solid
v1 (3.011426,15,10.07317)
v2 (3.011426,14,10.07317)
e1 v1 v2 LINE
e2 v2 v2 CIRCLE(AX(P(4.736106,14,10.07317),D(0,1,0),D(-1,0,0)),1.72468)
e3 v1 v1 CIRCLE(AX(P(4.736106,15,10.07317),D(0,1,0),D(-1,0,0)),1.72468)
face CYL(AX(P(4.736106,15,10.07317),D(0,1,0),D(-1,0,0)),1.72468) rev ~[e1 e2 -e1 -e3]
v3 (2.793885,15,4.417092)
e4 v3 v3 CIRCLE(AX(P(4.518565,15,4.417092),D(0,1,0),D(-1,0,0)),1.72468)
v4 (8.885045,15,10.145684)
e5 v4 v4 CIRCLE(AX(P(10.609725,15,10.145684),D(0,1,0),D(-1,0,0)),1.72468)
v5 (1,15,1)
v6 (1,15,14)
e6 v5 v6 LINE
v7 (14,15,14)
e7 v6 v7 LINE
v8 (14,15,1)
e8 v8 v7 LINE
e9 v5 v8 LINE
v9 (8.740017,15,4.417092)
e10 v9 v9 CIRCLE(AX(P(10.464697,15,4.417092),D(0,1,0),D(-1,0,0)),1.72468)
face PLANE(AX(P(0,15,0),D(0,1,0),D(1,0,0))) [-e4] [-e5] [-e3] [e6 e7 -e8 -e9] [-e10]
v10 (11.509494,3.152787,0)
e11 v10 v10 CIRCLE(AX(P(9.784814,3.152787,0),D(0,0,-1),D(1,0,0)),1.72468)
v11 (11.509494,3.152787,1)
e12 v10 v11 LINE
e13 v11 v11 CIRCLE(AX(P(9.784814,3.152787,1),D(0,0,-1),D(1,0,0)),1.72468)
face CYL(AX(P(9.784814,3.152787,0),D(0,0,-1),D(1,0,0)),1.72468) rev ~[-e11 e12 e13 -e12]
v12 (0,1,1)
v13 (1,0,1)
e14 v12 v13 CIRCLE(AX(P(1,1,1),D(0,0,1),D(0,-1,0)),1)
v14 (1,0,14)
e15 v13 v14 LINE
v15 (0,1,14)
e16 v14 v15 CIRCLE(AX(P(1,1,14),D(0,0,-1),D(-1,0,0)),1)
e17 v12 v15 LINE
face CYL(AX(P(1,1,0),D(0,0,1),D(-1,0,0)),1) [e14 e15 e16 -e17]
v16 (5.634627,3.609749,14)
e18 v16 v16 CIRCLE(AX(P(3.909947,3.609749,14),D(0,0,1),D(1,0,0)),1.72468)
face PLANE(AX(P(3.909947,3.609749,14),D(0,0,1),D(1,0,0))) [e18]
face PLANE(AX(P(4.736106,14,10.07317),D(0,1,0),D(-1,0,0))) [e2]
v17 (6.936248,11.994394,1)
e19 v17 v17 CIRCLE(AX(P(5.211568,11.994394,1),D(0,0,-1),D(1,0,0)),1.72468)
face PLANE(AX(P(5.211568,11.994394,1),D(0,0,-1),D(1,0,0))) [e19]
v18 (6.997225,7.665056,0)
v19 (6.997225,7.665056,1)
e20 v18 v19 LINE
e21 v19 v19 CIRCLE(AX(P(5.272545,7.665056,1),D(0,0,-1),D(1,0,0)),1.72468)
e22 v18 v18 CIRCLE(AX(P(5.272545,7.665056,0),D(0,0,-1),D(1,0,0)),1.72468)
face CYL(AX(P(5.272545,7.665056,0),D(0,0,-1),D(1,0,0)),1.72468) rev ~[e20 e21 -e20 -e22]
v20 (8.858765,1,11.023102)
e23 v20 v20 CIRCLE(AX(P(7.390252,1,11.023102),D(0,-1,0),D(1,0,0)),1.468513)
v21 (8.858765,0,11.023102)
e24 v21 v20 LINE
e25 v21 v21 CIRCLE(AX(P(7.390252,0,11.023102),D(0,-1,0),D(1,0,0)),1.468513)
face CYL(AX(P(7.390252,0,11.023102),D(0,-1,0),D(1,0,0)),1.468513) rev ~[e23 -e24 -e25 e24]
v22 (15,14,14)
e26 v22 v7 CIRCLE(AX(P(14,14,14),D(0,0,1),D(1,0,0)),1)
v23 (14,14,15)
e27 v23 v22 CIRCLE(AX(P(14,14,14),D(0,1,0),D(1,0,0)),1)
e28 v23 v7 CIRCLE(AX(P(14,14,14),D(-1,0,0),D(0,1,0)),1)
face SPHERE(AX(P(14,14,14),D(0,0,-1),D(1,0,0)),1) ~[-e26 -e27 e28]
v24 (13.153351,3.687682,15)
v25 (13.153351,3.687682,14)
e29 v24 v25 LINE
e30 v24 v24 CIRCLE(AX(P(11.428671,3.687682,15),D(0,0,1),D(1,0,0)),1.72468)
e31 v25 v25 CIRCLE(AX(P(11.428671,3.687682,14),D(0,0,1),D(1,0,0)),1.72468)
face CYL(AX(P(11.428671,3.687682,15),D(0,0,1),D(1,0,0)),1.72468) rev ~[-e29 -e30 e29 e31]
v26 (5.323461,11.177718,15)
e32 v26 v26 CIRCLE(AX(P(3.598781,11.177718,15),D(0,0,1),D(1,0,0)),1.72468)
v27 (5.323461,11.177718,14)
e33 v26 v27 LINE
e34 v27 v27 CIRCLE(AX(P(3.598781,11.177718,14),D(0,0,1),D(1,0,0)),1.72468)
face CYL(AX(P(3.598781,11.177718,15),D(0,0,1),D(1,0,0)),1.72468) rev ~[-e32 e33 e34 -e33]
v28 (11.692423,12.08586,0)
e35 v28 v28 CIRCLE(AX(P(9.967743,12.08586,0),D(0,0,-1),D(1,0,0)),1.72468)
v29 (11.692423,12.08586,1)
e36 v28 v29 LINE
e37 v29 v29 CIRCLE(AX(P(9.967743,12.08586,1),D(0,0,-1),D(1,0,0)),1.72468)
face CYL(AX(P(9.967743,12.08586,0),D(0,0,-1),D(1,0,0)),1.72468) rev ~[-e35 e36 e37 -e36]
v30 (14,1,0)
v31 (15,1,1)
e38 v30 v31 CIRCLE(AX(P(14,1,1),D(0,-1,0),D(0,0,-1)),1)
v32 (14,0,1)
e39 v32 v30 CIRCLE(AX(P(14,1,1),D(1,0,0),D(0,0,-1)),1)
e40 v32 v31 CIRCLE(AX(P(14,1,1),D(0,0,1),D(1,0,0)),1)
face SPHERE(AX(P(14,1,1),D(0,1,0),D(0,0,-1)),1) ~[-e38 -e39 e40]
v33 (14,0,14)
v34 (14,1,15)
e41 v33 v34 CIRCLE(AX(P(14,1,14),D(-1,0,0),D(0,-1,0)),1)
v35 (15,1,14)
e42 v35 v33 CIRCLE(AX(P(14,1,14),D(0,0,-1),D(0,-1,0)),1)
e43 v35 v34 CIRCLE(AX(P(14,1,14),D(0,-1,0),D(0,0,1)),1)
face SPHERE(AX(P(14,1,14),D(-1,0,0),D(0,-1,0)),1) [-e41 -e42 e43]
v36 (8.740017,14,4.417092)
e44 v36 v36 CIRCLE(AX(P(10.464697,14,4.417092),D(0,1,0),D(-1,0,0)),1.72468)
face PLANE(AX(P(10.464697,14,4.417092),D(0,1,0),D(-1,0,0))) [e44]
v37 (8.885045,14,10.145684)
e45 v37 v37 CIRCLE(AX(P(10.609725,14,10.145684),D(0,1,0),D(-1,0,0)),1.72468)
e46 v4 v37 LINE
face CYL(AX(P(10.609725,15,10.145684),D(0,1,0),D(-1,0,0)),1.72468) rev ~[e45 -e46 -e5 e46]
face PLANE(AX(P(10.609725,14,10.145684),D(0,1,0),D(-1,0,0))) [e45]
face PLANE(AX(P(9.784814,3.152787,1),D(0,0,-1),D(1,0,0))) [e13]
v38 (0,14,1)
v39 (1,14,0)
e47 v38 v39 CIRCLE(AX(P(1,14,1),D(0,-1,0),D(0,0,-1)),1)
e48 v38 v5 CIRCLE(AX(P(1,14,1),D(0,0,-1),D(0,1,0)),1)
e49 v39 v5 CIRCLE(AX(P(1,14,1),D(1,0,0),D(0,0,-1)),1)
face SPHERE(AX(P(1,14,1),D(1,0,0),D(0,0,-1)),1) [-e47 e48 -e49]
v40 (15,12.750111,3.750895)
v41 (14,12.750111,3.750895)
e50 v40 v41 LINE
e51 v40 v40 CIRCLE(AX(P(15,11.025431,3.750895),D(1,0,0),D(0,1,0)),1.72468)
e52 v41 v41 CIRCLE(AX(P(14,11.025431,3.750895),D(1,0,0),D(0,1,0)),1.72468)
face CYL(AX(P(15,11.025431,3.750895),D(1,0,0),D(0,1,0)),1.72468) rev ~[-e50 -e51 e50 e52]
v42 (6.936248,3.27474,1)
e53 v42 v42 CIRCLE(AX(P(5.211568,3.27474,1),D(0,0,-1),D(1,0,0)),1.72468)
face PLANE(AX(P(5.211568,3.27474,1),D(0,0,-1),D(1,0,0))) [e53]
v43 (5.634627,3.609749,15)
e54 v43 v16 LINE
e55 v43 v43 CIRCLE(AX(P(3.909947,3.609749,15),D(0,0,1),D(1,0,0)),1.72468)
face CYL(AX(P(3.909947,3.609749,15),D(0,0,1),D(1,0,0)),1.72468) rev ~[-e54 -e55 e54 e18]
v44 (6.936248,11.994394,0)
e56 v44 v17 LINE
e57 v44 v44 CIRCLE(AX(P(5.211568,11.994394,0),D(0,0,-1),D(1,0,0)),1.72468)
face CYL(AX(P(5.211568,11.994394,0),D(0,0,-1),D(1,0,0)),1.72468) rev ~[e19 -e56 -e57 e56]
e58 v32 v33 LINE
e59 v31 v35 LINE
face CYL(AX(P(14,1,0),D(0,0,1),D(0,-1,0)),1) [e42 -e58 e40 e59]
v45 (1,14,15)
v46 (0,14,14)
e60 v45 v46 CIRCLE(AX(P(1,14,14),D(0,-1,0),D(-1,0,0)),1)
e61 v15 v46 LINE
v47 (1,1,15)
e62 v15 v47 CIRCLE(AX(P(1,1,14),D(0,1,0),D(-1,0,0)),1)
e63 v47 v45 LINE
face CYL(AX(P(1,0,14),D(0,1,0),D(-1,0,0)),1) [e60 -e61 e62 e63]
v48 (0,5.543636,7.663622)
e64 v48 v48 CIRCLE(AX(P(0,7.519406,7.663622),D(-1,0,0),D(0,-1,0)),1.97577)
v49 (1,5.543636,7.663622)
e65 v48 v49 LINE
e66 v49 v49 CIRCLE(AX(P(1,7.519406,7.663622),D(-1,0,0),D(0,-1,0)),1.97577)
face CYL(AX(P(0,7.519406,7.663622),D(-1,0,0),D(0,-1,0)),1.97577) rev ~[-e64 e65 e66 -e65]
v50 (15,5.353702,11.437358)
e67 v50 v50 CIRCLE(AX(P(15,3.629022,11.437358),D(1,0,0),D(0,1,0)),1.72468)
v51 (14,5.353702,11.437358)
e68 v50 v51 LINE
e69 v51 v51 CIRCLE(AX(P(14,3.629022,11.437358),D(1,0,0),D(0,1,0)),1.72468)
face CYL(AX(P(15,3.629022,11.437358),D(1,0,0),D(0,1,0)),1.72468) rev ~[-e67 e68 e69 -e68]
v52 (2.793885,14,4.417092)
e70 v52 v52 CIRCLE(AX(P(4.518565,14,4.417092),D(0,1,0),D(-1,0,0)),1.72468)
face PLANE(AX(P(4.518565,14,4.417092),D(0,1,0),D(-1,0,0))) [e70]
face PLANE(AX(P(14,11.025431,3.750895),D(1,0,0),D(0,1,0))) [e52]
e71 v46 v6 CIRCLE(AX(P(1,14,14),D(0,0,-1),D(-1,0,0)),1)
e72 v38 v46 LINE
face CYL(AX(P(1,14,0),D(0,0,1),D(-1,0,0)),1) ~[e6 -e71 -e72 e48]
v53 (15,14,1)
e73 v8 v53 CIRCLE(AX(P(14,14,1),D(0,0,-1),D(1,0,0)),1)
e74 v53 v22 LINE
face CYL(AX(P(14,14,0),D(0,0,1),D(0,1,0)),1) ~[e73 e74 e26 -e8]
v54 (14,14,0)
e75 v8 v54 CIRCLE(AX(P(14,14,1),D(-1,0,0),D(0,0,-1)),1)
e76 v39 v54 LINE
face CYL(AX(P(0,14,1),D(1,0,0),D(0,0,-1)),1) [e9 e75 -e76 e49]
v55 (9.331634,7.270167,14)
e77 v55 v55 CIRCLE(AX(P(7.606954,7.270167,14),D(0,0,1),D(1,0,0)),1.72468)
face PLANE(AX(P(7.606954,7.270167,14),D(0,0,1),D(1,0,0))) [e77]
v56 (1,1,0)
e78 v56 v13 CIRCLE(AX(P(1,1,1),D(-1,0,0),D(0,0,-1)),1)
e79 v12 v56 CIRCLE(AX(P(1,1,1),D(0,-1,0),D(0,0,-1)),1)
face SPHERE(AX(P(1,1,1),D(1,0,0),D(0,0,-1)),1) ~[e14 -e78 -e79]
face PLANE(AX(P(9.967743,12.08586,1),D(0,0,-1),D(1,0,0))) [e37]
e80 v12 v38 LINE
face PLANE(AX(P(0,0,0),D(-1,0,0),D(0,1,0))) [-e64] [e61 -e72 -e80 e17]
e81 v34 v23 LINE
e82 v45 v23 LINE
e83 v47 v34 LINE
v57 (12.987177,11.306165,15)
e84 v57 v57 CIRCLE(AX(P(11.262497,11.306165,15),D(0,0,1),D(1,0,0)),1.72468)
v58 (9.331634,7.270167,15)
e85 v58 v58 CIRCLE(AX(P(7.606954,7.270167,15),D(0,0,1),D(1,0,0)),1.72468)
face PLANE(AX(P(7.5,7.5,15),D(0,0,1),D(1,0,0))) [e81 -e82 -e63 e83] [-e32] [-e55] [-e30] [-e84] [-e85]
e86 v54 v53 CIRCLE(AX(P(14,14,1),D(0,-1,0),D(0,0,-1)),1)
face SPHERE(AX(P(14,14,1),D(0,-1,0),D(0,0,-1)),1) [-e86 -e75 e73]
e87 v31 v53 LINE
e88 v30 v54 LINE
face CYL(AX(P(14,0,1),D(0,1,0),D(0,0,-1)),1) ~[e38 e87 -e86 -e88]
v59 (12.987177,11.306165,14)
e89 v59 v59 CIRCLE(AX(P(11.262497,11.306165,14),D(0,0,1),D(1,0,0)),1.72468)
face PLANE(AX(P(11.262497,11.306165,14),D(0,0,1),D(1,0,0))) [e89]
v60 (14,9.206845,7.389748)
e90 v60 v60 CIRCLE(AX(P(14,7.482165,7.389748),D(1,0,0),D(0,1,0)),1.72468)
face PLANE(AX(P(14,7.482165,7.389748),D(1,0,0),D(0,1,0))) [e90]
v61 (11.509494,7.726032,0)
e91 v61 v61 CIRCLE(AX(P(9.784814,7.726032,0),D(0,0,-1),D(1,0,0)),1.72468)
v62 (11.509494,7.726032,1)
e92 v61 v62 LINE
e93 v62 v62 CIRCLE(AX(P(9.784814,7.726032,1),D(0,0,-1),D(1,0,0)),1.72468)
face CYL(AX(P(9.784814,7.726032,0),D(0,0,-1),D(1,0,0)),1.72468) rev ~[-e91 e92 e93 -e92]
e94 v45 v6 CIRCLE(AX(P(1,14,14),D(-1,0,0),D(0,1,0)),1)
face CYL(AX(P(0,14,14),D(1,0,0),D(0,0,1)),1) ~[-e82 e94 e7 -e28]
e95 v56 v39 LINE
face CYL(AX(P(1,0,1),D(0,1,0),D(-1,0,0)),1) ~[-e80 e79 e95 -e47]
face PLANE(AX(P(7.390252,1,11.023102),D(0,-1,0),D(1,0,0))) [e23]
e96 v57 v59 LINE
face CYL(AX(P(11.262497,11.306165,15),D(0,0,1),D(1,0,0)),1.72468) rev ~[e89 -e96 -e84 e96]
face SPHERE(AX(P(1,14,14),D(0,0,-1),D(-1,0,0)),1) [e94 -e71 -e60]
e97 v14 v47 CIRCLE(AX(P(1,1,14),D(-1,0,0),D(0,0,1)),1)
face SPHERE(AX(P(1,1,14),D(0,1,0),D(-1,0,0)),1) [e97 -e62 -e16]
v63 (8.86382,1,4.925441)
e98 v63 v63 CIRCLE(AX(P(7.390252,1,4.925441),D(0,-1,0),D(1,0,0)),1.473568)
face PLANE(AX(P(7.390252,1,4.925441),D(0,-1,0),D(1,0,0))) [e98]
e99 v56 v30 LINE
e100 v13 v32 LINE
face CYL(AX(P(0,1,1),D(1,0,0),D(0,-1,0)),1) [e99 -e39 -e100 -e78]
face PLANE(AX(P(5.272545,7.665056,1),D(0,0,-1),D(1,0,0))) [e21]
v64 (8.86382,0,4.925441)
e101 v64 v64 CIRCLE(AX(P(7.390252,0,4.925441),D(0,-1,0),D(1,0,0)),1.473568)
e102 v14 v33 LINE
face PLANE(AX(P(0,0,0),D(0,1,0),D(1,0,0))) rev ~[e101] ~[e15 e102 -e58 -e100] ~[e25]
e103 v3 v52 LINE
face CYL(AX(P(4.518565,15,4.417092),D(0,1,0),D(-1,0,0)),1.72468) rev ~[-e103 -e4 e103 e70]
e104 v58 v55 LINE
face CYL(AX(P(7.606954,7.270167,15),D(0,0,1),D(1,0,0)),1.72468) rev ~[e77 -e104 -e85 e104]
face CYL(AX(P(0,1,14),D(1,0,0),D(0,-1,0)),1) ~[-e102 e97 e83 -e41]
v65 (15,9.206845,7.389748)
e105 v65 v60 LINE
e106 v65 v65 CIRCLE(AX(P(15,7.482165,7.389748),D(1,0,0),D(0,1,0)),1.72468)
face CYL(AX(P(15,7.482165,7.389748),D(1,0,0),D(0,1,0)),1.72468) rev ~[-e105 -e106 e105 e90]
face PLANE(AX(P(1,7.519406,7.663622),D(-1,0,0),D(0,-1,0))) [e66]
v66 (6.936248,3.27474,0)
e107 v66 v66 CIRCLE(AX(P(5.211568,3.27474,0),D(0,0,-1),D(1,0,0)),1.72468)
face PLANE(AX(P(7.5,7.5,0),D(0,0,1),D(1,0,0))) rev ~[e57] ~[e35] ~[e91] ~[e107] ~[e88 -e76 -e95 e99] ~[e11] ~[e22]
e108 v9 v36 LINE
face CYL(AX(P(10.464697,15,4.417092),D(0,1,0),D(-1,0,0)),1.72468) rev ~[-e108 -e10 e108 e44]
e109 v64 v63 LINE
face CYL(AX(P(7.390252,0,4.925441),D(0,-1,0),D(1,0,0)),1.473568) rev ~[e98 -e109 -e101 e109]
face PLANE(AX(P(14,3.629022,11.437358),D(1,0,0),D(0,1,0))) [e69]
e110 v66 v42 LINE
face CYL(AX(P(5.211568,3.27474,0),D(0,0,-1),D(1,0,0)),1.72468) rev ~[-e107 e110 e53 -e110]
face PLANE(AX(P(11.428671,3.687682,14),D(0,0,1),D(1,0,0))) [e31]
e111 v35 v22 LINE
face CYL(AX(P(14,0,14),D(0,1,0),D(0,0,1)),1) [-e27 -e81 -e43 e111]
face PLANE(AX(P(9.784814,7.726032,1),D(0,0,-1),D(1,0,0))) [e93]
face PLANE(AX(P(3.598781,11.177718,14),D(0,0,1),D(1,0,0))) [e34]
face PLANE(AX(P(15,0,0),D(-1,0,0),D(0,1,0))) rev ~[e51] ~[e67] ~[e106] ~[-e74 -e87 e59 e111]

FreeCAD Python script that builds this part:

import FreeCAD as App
import Part
import Sketcher
Q = App.Units.Quantity


def edges_at(feature, points):
    """Names of the edges that pass closest to the given points."""
    edges = feature.Shape.Edges
    near = lambda p: min(range(len(edges)), key=lambda i: edges[i].distToShape(Part.Vertex(*p))[0])
    return sorted({f"Edge{near(p) + 1}" for p in points})

doc = App.newDocument("Part")
params = doc.addObject("Spreadsheet::Sheet", "Params")
for row, (alias, value) in enumerate([
    ("sketch1_width", "15 mm"),
    ("pad1_length", "15 mm"),
    ("pocket1_length", "1 mm"),
    ("pocket2_length", "1 mm"),
    ("pocket3_length", "1 mm"),
    ("pocket4_length", "1 mm"),
    ("pocket5_length", "1 mm"),
    ("pocket6_length", "1 mm"),
    ("fillet_radius", "1 mm"),
], start=1):
    params.set(f"A{row}", alias)
    params.set(f"B{row}", "=" + value)
    params.setAlias(f"B{row}", alias)

body = doc.addObject("PartDesign::Body", "Body")

sketch1 = doc.addObject("Sketcher::SketchObject", "Sketch")
body.addObject(sketch1)
sketch1.AttachmentSupport = (doc.XY_Plane, [""])
sketch1.MapMode = "FlatFace"
sketch1.addGeometry([
    Part.LineSegment(App.Vector(0, 15, 0), App.Vector(0, 0, 0)),
    Part.LineSegment(App.Vector(0, 0, 0), App.Vector(15, 0, 0)),
    Part.LineSegment(App.Vector(15, 0, 0), App.Vector(15, 15, 0)),
    Part.LineSegment(App.Vector(15, 15, 0), App.Vector(0, 15, 0)),
], False)
sketch1.addConstraint([
    Sketcher.Constraint("Coincident", 0, 2, 1, 1),
    Sketcher.Constraint("Coincident", 1, 2, 2, 1),
    Sketcher.Constraint("Coincident", 2, 2, 3, 1),
    Sketcher.Constraint("Coincident", 3, 2, 0, 1),
    Sketcher.Constraint("Vertical", 0),
    Sketcher.Constraint("Horizontal", 1),
    Sketcher.Constraint("Vertical", 2),
    Sketcher.Constraint("Horizontal", 3),
    Sketcher.Constraint("Coincident", 0, 2, -1, 1),
    Sketcher.Constraint("Equal", 3, 0),
    Sketcher.Constraint("DistanceX", 1, 1, 1, 2, Q("15 mm")),
])
sketch1.setExpression("Constraints[10]", "Params.sketch1_width")
pad1 = doc.addObject("PartDesign::Pad", "Pad")
body.addObject(pad1)
pad1.Profile = sketch1
pad1.setExpression("Length", "Params.pad1_length")

sketch2 = doc.addObject("Sketcher::SketchObject", "Sketch001")
body.addObject(sketch2)
sketch2.AttachmentSupport = (doc.XZ_Plane, [""])
sketch2.MapMode = "FlatFace"
sketch2.addGeometry([
    Part.Circle(App.Vector(7.4, 4.9, 0), App.Vector(0, 0, 1), 1.5),
    Part.Circle(App.Vector(7.4, 11, 0), App.Vector(0, 0, 1), 1.5),
], False)
sketch2.addConstraint([
    Sketcher.Constraint("Vertical", 0, 3, 1, 3),
    Sketcher.Constraint("Diameter", 0, Q("2.947137 mm")),
    Sketcher.Constraint("Diameter", 1, Q("2.937026 mm")),
    Sketcher.Constraint("DistanceX", -1, 1, 0, 3, Q("7.390252 mm")),
    Sketcher.Constraint("DistanceY", -1, 1, 0, 3, Q("4.925441 mm")),
    Sketcher.Constraint("DistanceY", 0, 3, 1, 3, Q("6.097661 mm")),
])
pocket1 = doc.addObject("PartDesign::Pocket", "Pocket")
body.addObject(pocket1)
pocket1.Profile = sketch2
pocket1.setExpression("Length", "Params.pocket1_length")

sketch3 = doc.addObject("Sketcher::SketchObject", "Sketch002")
body.addObject(sketch3)
sketch3.AttachmentSupport = (doc.YZ_Plane, [""])
sketch3.MapMode = "FlatFace"
sketch3.addGeometry(Part.Circle(App.Vector(7.5, 7.7, 0), App.Vector(0, 0, 1), 2), False)
sketch3.addConstraint([
    Sketcher.Constraint("Diameter", 0, Q("3.95154 mm")),
    Sketcher.Constraint("DistanceX", -1, 1, 0, 3, Q("7.519406 mm")),
    Sketcher.Constraint("DistanceY", -1, 1, 0, 3, Q("7.663622 mm")),
])
pocket2 = doc.addObject("PartDesign::Pocket", "Pocket001")
body.addObject(pocket2)
pocket2.Profile = sketch3
pocket2.setExpression("Length", "Params.pocket2_length")
pocket2.Reversed = True

sketch4 = doc.addObject("Sketcher::SketchObject", "Sketch003")
body.addObject(sketch4)
sketch4.AttachmentSupport = (doc.XZ_Plane, [""])
sketch4.MapMode = "FlatFace"
sketch4.AttachmentOffset = App.Placement(App.Vector(0, 0, -15), App.Rotation())
sketch4.addGeometry([
    Part.Circle(App.Vector(4.5, 4.4, 0), App.Vector(0, 0, 1), 1.7),
    Part.Circle(App.Vector(10.6, 10.1, 0), App.Vector(0, 0, 1), 1.7),
    Part.Circle(App.Vector(10.5, 4.4, 0), App.Vector(0, 0, 1), 1.7),
    Part.Circle(App.Vector(4.7, 10.1, 0), App.Vector(0, 0, 1), 1.7),
], False)
sketch4.addConstraint([
    Sketcher.Constraint("Equal", 0, 1),
    Sketcher.Constraint("Equal", 1, 2),
    Sketcher.Constraint("Equal", 2, 3),
    Sketcher.Constraint("Horizontal", 0, 3, 2, 3),
    Sketcher.Constraint("Diameter", 0, Q("3.44936 mm")),
    Sketcher.Constraint("DistanceY", -1, 1, 3, 3, Q("10.07317 mm")),
    Sketcher.Constraint("DistanceX", 0, 3, 1, 3, Q("6.091161 mm")),
    Sketcher.Constraint("DistanceY", 0, 3, 1, 3, Q("5.728592 mm")),
    Sketcher.Constraint("DistanceX", 2, 3, 1, 3, Q("0.145028 mm")),
    Sketcher.Constraint("DistanceX", 0, 3, 3, 3, Q("0.217542 mm")),
    Sketcher.Constraint("DistanceX", -1, 1, 0, 3, Q("4.518565 mm")),
    Sketcher.Constraint("DistanceY", -1, 1, 0, 3, Q("4.417092 mm")),
])
pocket3 = doc.addObject("PartDesign::Pocket", "Pocket002")
body.addObject(pocket3)
pocket3.Profile = sketch4
pocket3.setExpression("Length", "Params.pocket3_length")
pocket3.Reversed = True

sketch5 = doc.addObject("Sketcher::SketchObject", "Sketch004")
body.addObject(sketch5)
sketch5.AttachmentSupport = (doc.YZ_Plane, [""])
sketch5.MapMode = "FlatFace"
sketch5.AttachmentOffset = App.Placement(App.Vector(0, 0, 15), App.Rotation())
sketch5.addGeometry([
    Part.Circle(App.Vector(7.5, 7.4, 0), App.Vector(0, 0, 1), 1.7),
    Part.Circle(App.Vector(3.6, 11.4, 0), App.Vector(0, 0, 1), 1.7),
    Part.Circle(App.Vector(11, 3.8, 0), App.Vector(0, 0, 1), 1.7),
], False)
sketch5.addConstraint([
    Sketcher.Constraint("Equal", 0, 1),
    Sketcher.Constraint("Equal", 1, 2),
    Sketcher.Constraint("Diameter", 0, Q("3.44936 mm")),
    Sketcher.Constraint("DistanceX", -1, 1, 1, 3, Q("3.629022 mm")),
    Sketcher.Constraint("DistanceY", -1, 1, 1, 3, Q("11.437358 mm")),
    Sketcher.Constraint("DistanceX", -1, 1, 2, 3, Q("11.025431 mm")),
    Sketcher.Constraint("DistanceY", 0, 3, 1, 3, Q("4.047611 mm")),
    Sketcher.Constraint("DistanceX", -1, 1, 0, 3, Q("7.482165 mm")),
    Sketcher.Constraint("DistanceY", -1, 1, 2, 3, Q("3.750895 mm")),
])
pocket4 = doc.addObject("PartDesign::Pocket", "Pocket003")
body.addObject(pocket4)
pocket4.Profile = sketch5
pocket4.setExpression("Length", "Params.pocket4_length")

sketch6 = doc.addObject("Sketcher::SketchObject", "Sketch005")
body.addObject(sketch6)
sketch6.AttachmentSupport = (doc.XY_Plane, [""])
sketch6.MapMode = "FlatFace"
sketch6.addGeometry([
    Part.Circle(App.Vector(5.3, 7.7, 0), App.Vector(0, 0, 1), 1.7),
    Part.Circle(App.Vector(5.2, 3.3, 0), App.Vector(0, 0, 1), 1.7),
    Part.Circle(App.Vector(10, 12.1, 0), App.Vector(0, 0, 1), 1.7),
    Part.Circle(App.Vector(9.8, 7.7, 0), App.Vector(0, 0, 1), 1.7),
    Part.Circle(App.Vector(9.8, 3.2, 0), App.Vector(0, 0, 1), 1.7),
    Part.Circle(App.Vector(5.2, 12, 0), App.Vector(0, 0, 1), 1.7),
], False)
sketch6.addConstraint([
    Sketcher.Constraint("Equal", 0, 1),
    Sketcher.Constraint("Equal", 1, 2),
    Sketcher.Constraint("Equal", 2, 3),
    Sketcher.Constraint("Equal", 3, 4),
    Sketcher.Constraint("Equal", 4, 5),
    Sketcher.Constraint("Vertical", 3, 3, 4, 3),
    Sketcher.Constraint("Vertical", 1, 3, 5, 3),
    Sketcher.Constraint("Diameter", 0, Q("3.44936 mm")),
    Sketcher.Constraint("DistanceX", 0, 3, 2, 3, Q("4.695198 mm")),
    Sketcher.Constraint("DistanceX", -1, 1, 1, 3, Q("5.211568 mm")),
    Sketcher.Constraint("DistanceY", -1, 1, 1, 3, Q("3.27474 mm")),
    Sketcher.Constraint("DistanceY", -1, 1, 2, 3, Q("12.08586 mm")),
    Sketcher.Constraint("DistanceX", 3, 3, 2, 3, Q("0.182929 mm")),
    Sketcher.Constraint("DistanceY", 4, 3, 0, 3, Q("4.512269 mm")),
    Sketcher.Constraint("DistanceY", 0, 3, 5, 3, Q("4.329339 mm")),
    Sketcher.Constraint("DistanceX", -1, 1, 0, 3, Q("5.272545 mm")),
    Sketcher.Constraint("DistanceY", -1, 1, 0, 3, Q("7.665056 mm")),
    Sketcher.Constraint("DistanceY", -1, 1, 3, 3, Q("7.726032 mm")),
])
pocket5 = doc.addObject("PartDesign::Pocket", "Pocket004")
body.addObject(pocket5)
pocket5.Profile = sketch6
pocket5.setExpression("Length", "Params.pocket5_length")
pocket5.Reversed = True

sketch7 = doc.addObject("Sketcher::SketchObject", "Sketch006")
body.addObject(sketch7)
sketch7.AttachmentSupport = (doc.XY_Plane, [""])
sketch7.MapMode = "FlatFace"
sketch7.AttachmentOffset = App.Placement(App.Vector(0, 0, 15), App.Rotation())
sketch7.addGeometry([
    Part.Circle(App.Vector(7.6, 7.3, 0), App.Vector(0, 0, 1), 1.7),
    Part.Circle(App.Vector(11.4, 3.7, 0), App.Vector(0, 0, 1), 1.7),
    Part.Circle(App.Vector(11.3, 11.3, 0), App.Vector(0, 0, 1), 1.7),
    Part.Circle(App.Vector(3.6, 11.2, 0), App.Vector(0, 0, 1), 1.7),
    Part.Circle(App.Vector(3.9, 3.6, 0), App.Vector(0, 0, 1), 1.7),
], False)
sketch7.addConstraint([
    Sketcher.Constraint("Equal", 0, 1),
    Sketcher.Constraint("Equal", 1, 2),
    Sketcher.Constraint("Equal", 2, 3),
    Sketcher.Constraint("Equal", 3, 4),
    Sketcher.Constraint("Diameter", 0, Q("3.44936 mm")),
    Sketcher.Constraint("DistanceY", 0, 3, 2, 3, Q("4.035998 mm")),
    Sketcher.Constraint("DistanceX", -1, 1, 1, 3, Q("11.428671 mm")),
    Sketcher.Constraint("DistanceY", -1, 1, 1, 3, Q("3.687682 mm")),
    Sketcher.Constraint("DistanceX", -1, 1, 3, 3, Q("3.598781 mm")),
    Sketcher.Constraint("DistanceY", -1, 1, 4, 3, Q("3.609749 mm")),
    Sketcher.Constraint("DistanceY", 0, 3, 3, 3, Q("3.907551 mm")),
    Sketcher.Constraint("DistanceY", 4, 3, 0, 3, Q("3.660418 mm")),
    Sketcher.Constraint("DistanceX", 4, 3, 2, 3, Q("7.35255 mm")),
    Sketcher.Constraint("DistanceX", -1, 1, 0, 3, Q("7.606954 mm")),
    Sketcher.Constraint("DistanceX", -1, 1, 2, 3, Q("11.262497 mm")),
])
pocket6 = doc.addObject("PartDesign::Pocket", "Pocket005")
body.addObject(pocket6)
pocket6.Profile = sketch7
pocket6.setExpression("Length", "Params.pocket6_length")
doc.recompute()

fillet = doc.addObject("PartDesign::Fillet", "Fillet")
body.addObject(fillet)
fillet.Base = (pocket6, edges_at(pocket6, [
    (15, 7.5, 0),
    (7.5, 15, 0),
    (15, 15, 7.5),
    (7.5, 0, 0),
    (0, 7.5, 0),
    (0, 15, 7.5),
    (0, 7.5, 15),
    (0, 0, 7.5),
    (7.5, 0, 15),
    (15, 0, 7.5),
    (15, 7.5, 15),
    (7.5, 15, 15),
]))
fillet.setExpression("Radius", "Params.fillet_radius")

doc.recompute()
